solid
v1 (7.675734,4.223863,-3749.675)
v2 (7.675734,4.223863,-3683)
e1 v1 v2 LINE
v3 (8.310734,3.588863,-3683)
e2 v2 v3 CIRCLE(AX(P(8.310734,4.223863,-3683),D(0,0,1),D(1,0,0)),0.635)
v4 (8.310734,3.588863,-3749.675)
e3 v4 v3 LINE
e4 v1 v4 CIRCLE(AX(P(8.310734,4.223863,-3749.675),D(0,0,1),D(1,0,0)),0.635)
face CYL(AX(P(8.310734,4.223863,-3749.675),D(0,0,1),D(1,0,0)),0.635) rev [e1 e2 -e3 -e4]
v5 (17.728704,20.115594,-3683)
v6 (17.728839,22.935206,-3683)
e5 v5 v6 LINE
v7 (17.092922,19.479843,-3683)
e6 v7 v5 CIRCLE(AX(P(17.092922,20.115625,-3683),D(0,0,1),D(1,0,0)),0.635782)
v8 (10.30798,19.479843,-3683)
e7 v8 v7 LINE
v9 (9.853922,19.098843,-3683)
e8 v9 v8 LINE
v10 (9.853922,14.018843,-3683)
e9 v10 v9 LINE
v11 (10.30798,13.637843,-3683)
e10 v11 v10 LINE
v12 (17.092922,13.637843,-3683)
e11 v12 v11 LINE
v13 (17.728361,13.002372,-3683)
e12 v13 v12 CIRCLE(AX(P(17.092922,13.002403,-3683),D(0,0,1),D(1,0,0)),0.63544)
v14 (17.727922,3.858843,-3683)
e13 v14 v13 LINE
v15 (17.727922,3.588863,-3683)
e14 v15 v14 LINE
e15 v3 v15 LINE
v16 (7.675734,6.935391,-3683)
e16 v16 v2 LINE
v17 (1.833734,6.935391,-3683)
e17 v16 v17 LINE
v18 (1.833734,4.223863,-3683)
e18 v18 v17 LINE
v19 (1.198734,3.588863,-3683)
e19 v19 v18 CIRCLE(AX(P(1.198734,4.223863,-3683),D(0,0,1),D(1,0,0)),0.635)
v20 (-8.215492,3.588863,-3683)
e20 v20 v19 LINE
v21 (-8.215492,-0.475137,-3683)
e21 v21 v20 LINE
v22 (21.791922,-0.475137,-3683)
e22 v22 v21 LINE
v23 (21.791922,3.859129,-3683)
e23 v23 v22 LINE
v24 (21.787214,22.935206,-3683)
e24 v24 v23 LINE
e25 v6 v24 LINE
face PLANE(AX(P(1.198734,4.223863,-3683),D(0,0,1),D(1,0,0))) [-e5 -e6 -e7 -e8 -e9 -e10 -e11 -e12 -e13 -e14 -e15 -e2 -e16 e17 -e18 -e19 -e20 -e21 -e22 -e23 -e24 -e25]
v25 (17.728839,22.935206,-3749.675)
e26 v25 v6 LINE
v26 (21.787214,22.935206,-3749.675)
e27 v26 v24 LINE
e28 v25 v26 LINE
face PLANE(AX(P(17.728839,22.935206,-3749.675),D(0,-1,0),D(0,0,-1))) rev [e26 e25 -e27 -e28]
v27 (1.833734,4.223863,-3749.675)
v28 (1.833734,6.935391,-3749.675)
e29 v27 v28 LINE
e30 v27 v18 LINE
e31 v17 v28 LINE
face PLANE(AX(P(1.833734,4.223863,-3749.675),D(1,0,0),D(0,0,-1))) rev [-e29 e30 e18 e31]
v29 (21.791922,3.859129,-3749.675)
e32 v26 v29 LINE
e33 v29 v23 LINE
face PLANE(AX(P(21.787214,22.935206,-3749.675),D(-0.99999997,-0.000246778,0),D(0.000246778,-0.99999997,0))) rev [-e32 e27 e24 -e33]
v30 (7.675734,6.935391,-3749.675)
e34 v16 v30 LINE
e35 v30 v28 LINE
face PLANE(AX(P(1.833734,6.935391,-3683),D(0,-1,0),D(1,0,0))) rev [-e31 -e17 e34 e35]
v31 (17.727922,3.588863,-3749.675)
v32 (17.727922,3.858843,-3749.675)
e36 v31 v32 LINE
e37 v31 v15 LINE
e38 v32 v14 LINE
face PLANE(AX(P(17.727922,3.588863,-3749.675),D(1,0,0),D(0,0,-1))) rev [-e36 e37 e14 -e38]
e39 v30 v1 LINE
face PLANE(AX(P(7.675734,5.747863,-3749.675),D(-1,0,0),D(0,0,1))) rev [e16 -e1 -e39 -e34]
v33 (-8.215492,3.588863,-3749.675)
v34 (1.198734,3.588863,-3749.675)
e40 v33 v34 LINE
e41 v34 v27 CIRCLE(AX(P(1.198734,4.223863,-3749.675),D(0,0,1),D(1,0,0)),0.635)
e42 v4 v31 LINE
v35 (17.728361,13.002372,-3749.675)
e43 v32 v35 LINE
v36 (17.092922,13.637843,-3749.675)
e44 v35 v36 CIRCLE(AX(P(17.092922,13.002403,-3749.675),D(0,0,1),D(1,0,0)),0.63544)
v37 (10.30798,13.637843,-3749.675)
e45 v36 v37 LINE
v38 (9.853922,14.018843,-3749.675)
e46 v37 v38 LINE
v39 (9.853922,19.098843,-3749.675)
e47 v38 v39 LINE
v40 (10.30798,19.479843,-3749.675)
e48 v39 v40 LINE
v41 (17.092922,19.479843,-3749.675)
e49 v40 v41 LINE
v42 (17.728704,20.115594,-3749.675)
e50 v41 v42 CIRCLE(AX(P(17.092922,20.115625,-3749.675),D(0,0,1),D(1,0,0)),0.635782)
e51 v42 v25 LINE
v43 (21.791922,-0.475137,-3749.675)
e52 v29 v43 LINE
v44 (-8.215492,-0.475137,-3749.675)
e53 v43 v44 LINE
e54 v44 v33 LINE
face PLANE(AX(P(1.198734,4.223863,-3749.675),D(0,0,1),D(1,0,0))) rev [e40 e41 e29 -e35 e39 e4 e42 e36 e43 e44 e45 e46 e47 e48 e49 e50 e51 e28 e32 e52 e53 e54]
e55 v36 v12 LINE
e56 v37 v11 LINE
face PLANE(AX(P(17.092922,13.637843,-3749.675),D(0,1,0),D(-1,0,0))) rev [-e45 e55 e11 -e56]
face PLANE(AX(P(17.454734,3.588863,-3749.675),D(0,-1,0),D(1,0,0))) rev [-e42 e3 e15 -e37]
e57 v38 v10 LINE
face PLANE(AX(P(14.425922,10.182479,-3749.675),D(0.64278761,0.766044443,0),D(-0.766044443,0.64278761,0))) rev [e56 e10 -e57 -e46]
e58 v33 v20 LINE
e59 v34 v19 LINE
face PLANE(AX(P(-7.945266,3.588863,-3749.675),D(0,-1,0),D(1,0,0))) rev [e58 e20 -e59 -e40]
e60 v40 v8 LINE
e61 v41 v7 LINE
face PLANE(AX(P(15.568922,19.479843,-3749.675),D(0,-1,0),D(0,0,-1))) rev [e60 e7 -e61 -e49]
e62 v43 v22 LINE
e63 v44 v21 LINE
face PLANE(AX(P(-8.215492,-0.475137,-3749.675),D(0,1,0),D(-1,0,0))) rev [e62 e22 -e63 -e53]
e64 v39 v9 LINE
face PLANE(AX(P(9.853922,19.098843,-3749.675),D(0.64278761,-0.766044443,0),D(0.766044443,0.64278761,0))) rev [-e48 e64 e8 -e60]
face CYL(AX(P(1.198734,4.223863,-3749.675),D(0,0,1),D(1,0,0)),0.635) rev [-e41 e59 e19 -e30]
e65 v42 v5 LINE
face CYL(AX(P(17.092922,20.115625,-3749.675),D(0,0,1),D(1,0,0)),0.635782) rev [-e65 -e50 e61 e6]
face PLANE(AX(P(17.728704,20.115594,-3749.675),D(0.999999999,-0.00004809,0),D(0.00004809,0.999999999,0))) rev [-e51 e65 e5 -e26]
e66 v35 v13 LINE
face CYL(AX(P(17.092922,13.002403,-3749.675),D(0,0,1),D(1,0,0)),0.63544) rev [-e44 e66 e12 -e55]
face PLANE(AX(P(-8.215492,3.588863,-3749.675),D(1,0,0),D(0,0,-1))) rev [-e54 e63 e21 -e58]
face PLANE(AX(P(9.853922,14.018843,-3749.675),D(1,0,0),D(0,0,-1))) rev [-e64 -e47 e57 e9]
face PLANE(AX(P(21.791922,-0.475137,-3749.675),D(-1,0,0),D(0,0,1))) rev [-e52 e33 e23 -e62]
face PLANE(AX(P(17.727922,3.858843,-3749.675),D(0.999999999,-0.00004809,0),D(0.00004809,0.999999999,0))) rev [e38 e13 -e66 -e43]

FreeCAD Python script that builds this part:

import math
import FreeCAD as App
import Part
import Sketcher

V = App.Vector
Q = App.Units.Quantity

doc = App.newDocument("Part")
body = doc.addObject("PartDesign::Body", "Body")

# Sketch on XY plane
sketch1 = body.newObject("Sketcher::SketchObject", "Sketch")
sketch1.AttachmentSupport = (doc.getObject("XY_Plane"), [""])
sketch1.MapMode = "FlatFace"
sketch1.AttachmentOffset = App.Placement(V(0, 0, -145 * 25.4), App.Rotation())
sketch1.addGeometry(Part.ArcOfCircle(Part.Circle(V(1.2, 4.22, 0), V(0, 0, 1), 0.64), math.radians(-90), math.radians(0)), False)
sketch1.addGeometry(Part.LineSegment(V(1.83, 4.22, 0), V(1.83, 5.75, 0)), False)
sketch1.addGeometry(Part.ArcOfCircle(Part.Circle(V(1.2, 5.75, 0), V(0, 0, 1), 0.63), math.radians(0), math.radians(90)), False)
sketch1.addGeometry(Part.LineSegment(V(1.2, 6.38, 0), V(-1.62, 6.38, 0)), False)
sketch1.addGeometry(Part.LineSegment(V(-1.62, 6.38, 0), V(-1.62, 6.89, 0)), False)
sketch1.addGeometry(Part.LineSegment(V(-1.62, 6.89, 0), V(2.21, 11.46, 0)), False)
sketch1.addGeometry(Part.LineSegment(V(2.21, 11.46, 0), V(7.29, 11.46, 0)), False)
sketch1.addGeometry(Part.LineSegment(V(7.29, 11.46, 0), V(11.13, 6.89, 0)), False)
sketch1.addGeometry(Part.LineSegment(V(11.13, 6.89, 0), V(11.13, 6.38, 0)), False)
sketch1.addGeometry(Part.LineSegment(V(11.13, 6.38, 0), V(8.31, 6.38, 0)), False)
sketch1.addGeometry(Part.ArcOfCircle(Part.Circle(V(8.31, 5.75, 0), V(0, 0, 1), 0.63), math.radians(90), math.radians(180)), False)
sketch1.addGeometry(Part.LineSegment(V(7.68, 5.75, 0), V(7.68, 4.22, 0)), False)
sketch1.addGeometry(Part.ArcOfCircle(Part.Circle(V(8.31, 4.22, 0), V(0, 0, 1), 0.64), math.radians(180), math.radians(270)), False)
sketch1.addGeometry(Part.LineSegment(V(8.31, 3.59, 0), V(17.73, 3.59, 0)), False)
sketch1.addGeometry(Part.LineSegment(V(17.73, 3.59, 0), V(17.73, 3.86, 0)), False)
sketch1.addGeometry(Part.LineSegment(V(17.73, 3.86, 0), V(17.73, 13, 0)), False)
sketch1.addGeometry(Part.ArcOfCircle(Part.Circle(V(17.09, 13, 0), V(0, 0, 1), 0.64), math.radians(0), math.radians(90)), False)
sketch1.addGeometry(Part.LineSegment(V(17.09, 13.64, 0), V(15.57, 13.64, 0)), False)
sketch1.addGeometry(Part.ArcOfCircle(Part.Circle(V(15.57, 13, 0), V(0, 0, 1), 0.64), math.radians(90), math.radians(180)), False)
sketch1.addGeometry(Part.LineSegment(V(14.93, 13, 0), V(14.93, 10.18, 0)), False)
sketch1.addGeometry(Part.LineSegment(V(14.93, 10.18, 0), V(14.43, 10.18, 0)), False)
sketch1.addGeometry(Part.LineSegment(V(14.43, 10.18, 0), V(9.85, 14.02, 0)), False)
sketch1.addGeometry(Part.LineSegment(V(9.85, 14.02, 0), V(9.85, 19.1, 0)), False)
sketch1.addGeometry(Part.LineSegment(V(9.85, 19.1, 0), V(14.43, 22.94, 0)), False)
sketch1.addGeometry(Part.LineSegment(V(14.43, 22.94, 0), V(14.93, 22.94, 0)), False)
sketch1.addGeometry(Part.LineSegment(V(14.93, 22.94, 0), V(14.93, 20.11, 0)), False)
sketch1.addGeometry(Part.ArcOfCircle(Part.Circle(V(15.57, 20.11, 0), V(0, 0, 1), 0.64), math.radians(180), math.radians(270)), False)
sketch1.addGeometry(Part.LineSegment(V(15.57, 19.48, 0), V(17.09, 19.48, 0)), False)
sketch1.addGeometry(Part.ArcOfCircle(Part.Circle(V(17.09, 20.12, 0), V(0, 0, 1), 0.64), math.radians(-90), math.radians(0)), False)
sketch1.addGeometry(Part.LineSegment(V(17.73, 20.12, 0), V(17.73, 22.94, 0)), False)
sketch1.addGeometry(Part.LineSegment(V(17.73, 22.94, 0), V(21.79, 22.94, 0)), False)
sketch1.addGeometry(Part.LineSegment(V(21.79, 22.94, 0), V(21.79, 3.86, 0)), False)
sketch1.addGeometry(Part.LineSegment(V(21.79, 3.86, 0), V(21.79, -0.48, 0)), False)
sketch1.addGeometry(Part.LineSegment(V(21.79, -0.48, 0), V(-8.22, -0.48, 0)), False)
sketch1.addGeometry(Part.LineSegment(V(-8.22, -0.48, 0), V(-8.22, 3.59, 0)), False)
sketch1.addGeometry(Part.LineSegment(V(-8.22, 3.59, 0), V(1.2, 3.59, 0)), False)
sketch1.addConstraint(Sketcher.Constraint("Tangent", 0, 2, 1, 1))
sketch1.addConstraint(Sketcher.Constraint("Tangent", 1, 2, 2, 1))
sketch1.addConstraint(Sketcher.Constraint("Tangent", 2, 2, 3, 1))
sketch1.addConstraint(Sketcher.Constraint("Coincident", 3, 2, 4, 1))
sketch1.addConstraint(Sketcher.Constraint("Coincident", 4, 2, 5, 1))
sketch1.addConstraint(Sketcher.Constraint("Coincident", 5, 2, 6, 1))
sketch1.addConstraint(Sketcher.Constraint("Coincident", 6, 2, 7, 1))
sketch1.addConstraint(Sketcher.Constraint("Coincident", 7, 2, 8, 1))
sketch1.addConstraint(Sketcher.Constraint("Coincident", 8, 2, 9, 1))
sketch1.addConstraint(Sketcher.Constraint("Tangent", 9, 2, 10, 1))
sketch1.addConstraint(Sketcher.Constraint("Tangent", 10, 2, 11, 1))
sketch1.addConstraint(Sketcher.Constraint("Tangent", 11, 2, 12, 1))
sketch1.addConstraint(Sketcher.Constraint("Tangent", 12, 2, 13, 1))
sketch1.addConstraint(Sketcher.Constraint("Coincident", 13, 2, 14, 1))
sketch1.addConstraint(Sketcher.Constraint("Coincident", 14, 2, 15, 1))
sketch1.addConstraint(Sketcher.Constraint("Tangent", 15, 2, 16, 1))
sketch1.addConstraint(Sketcher.Constraint("Tangent", 16, 2, 17, 1))
sketch1.addConstraint(Sketcher.Constraint("Tangent", 17, 2, 18, 1))
sketch1.addConstraint(Sketcher.Constraint("Tangent", 18, 2, 19, 1))
sketch1.addConstraint(Sketcher.Constraint("Coincident", 19, 2, 20, 1))
sketch1.addConstraint(Sketcher.Constraint("Coincident", 20, 2, 21, 1))
sketch1.addConstraint(Sketcher.Constraint("Coincident", 21, 2, 22, 1))
sketch1.addConstraint(Sketcher.Constraint("Coincident", 22, 2, 23, 1))
sketch1.addConstraint(Sketcher.Constraint("Coincident", 23, 2, 24, 1))
sketch1.addConstraint(Sketcher.Constraint("Coincident", 24, 2, 25, 1))
sketch1.addConstraint(Sketcher.Constraint("Tangent", 25, 2, 26, 1))
sketch1.addConstraint(Sketcher.Constraint("Tangent", 26, 2, 27, 1))
sketch1.addConstraint(Sketcher.Constraint("Tangent", 27, 2, 28, 1))
sketch1.addConstraint(Sketcher.Constraint("Tangent", 28, 2, 29, 1))
sketch1.addConstraint(Sketcher.Constraint("Coincident", 29, 2, 30, 1))
sketch1.addConstraint(Sketcher.Constraint("Coincident", 30, 2, 31, 1))
sketch1.addConstraint(Sketcher.Constraint("Coincident", 31, 2, 32, 1))
sketch1.addConstraint(Sketcher.Constraint("Coincident", 32, 2, 33, 1))
sketch1.addConstraint(Sketcher.Constraint("Coincident", 33, 2, 34, 1))
sketch1.addConstraint(Sketcher.Constraint("Coincident", 34, 2, 35, 1))
sketch1.addConstraint(Sketcher.Constraint("Tangent", 35, 2, 0, 1))
sketch1.addConstraint(Sketcher.Constraint("Vertical", 1))
sketch1.addConstraint(Sketcher.Constraint("Horizontal", 3))
sketch1.addConstraint(Sketcher.Constraint("Vertical", 4))
sketch1.addConstraint(Sketcher.Constraint("Horizontal", 6))
sketch1.addConstraint(Sketcher.Constraint("Vertical", 8))
sketch1.addConstraint(Sketcher.Constraint("Horizontal", 9))
sketch1.addConstraint(Sketcher.Constraint("Vertical", 11))
sketch1.addConstraint(Sketcher.Constraint("Horizontal", 13))
sketch1.addConstraint(Sketcher.Constraint("Vertical", 14))
sketch1.addConstraint(Sketcher.Constraint("Horizontal", 17))
sketch1.addConstraint(Sketcher.Constraint("Vertical", 19))
sketch1.addConstraint(Sketcher.Constraint("Horizontal", 20))
sketch1.addConstraint(Sketcher.Constraint("Vertical", 22))
sketch1.addConstraint(Sketcher.Constraint("Horizontal", 24))
sketch1.addConstraint(Sketcher.Constraint("Vertical", 25))
sketch1.addConstraint(Sketcher.Constraint("Horizontal", 27))
sketch1.addConstraint(Sketcher.Constraint("Horizontal", 30))
sketch1.addConstraint(Sketcher.Constraint("Vertical", 32))
sketch1.addConstraint(Sketcher.Constraint("Horizontal", 33))
sketch1.addConstraint(Sketcher.Constraint("Vertical", 34))
sketch1.addConstraint(Sketcher.Constraint("Horizontal", 35))
sketch1.addConstraint(Sketcher.Constraint("Equal", 0, 2))
sketch1.addConstraint(Sketcher.Constraint("Equal", 2, 10))
sketch1.addConstraint(Sketcher.Constraint("Equal", 10, 12))
sketch1.addConstraint(Sketcher.Constraint("Equal", 12, 18))
sketch1.addConstraint(Sketcher.Constraint("Equal", 18, 26))
sketch1.addConstraint(Sketcher.Constraint("Perpendicular", 5, 21))
sketch1.addConstraint(Sketcher.Constraint("Perpendicular", 7, 23))
sketch1.addConstraint(Sketcher.Constraint("Parallel", 15, 29))
sketch1.addConstraint(Sketcher.Constraint("Horizontal", 2, 3, 10, 3))
sketch1.addConstraint(Sketcher.Constraint("Horizontal", 0, 3, 12, 3))
sketch1.addConstraint(Sketcher.Constraint("Horizontal", 4, 2, 7, 2))
sketch1.addConstraint(Sketcher.Constraint("Horizontal", 24, 2, 29, 2))
sketch1.addConstraint(Sketcher.Constraint("Vertical", 18, 3, 26, 3))
sketch1.addConstraint(Sketcher.Constraint("Vertical", 16, 3, 28, 3))
sketch1.addConstraint(Sketcher.Constraint("Vertical", 20, 2, 23, 2))
sketch1.addConstraint(Sketcher.Constraint("Equal", 3, 9))
sketch1.addConstraint(Sketcher.Constraint("Equal", 27, 1))
sketch1.addConstraint(Sketcher.Constraint("Equal", 24, 4))
sketch1.addConstraint(Sketcher.Constraint("Equal", 9, 19))
sketch1.addConstraint(Sketcher.Constraint("Equal", 6, 22))
sketch1.addConstraint(Sketcher.Constraint("Equal", 19, 25))
sketch1.addConstraint(Sketcher.Constraint("Equal", 5, 7))
sketch1.addConstraint(Sketcher.Constraint("Equal", 7, 21))
sketch1.addConstraint(Sketcher.Constraint("DistanceX", 6, 1, 6, 2, Q("0.2 in")))
sketch1.addConstraint(Sketcher.Constraint("Angle", 5, Q("50 deg")))
sketch1.addConstraint(Sketcher.Constraint("Radius", 0, Q("0.025 in")))
sketch1.addConstraint(Sketcher.Constraint("DistanceX", 17, 2, 17, 1, Q("0.06 in")))
sketch1.addConstraint(Sketcher.Constraint("DistanceX", 20, 2, 20, 1, Q("0.02 in")))
sketch1.addConstraint(Sketcher.Constraint("DistanceY", 34, 1, 34, 2, Q("0.16 in")))
sketch1.addConstraint(Sketcher.Constraint("DistanceY", 2, 2, 5, 2, Q("0.2 in")))
sketch1.addConstraint(Sketcher.Constraint("DistanceX", 2, 3, 10, 3, Q("0.28 in")))
sketch1.addConstraint(Sketcher.Constraint("DistanceY", 14, 2, 18, 3, Q("0.36 in")))
sketch1.addConstraint(Sketcher.Constraint("DistanceX", 14, 2, 31, 2, Q("0.16 in")))
sketch1.addConstraint(Sketcher.Constraint("DistanceX", 19, 2, 31, 2, Q("0.27 in")))
sketch1.addConstraint(Sketcher.Constraint("Radius", 16, 0.63544))
sketch1.addConstraint(Sketcher.Constraint("Radius", 28, 0.635782))
sketch1.addConstraint(Sketcher.Constraint("DistanceY", 14, 1, 14, 2, 0.26998))
sketch1.addConstraint(Sketcher.Constraint("Distance", 31, 19.076078))
sketch1.addConstraint(Sketcher.Constraint("DistanceX", 13, 1, 13, 2, 9.417188))
sketch1.addConstraint(Sketcher.Constraint("DistanceX", 30, 1, 30, 2, 4.058375))
sketch1.addConstraint(Sketcher.Constraint("DistanceX", 33, 2, 33, 1, 30.007414))
sketch1.addConstraint(Sketcher.Constraint("DistanceX", -1, 1, 16, 3, 17.092922))
sketch1.addConstraint(Sketcher.Constraint("DistanceY", -1, 1, 19, 2, 10.182479))
pad1 = body.newObject("PartDesign::Pad", "Pad")
pad1.Profile = sketch1
pad1.Length = Q("2.625 in")
pad1.Reversed = True

# Sketch on XY plane
sketch2 = body.newObject("Sketcher::SketchObject", "Sketch001")
sketch2.AttachmentSupport = (doc.getObject("XY_Plane"), [""])
sketch2.MapMode = "FlatFace"
sketch2.AttachmentOffset = App.Placement(V(0, 0, -145 * 25.4), App.Rotation())
sketch2.addGeometry(Part.LineSegment(V(11.1, 6.4, 0), V(11.1, 6.9, 0)), False)
sketch2.addGeometry(Part.LineSegment(V(11.1, 6.9, 0), V(7.7, 11, 0)), False)
sketch2.addGeometry(Part.LineSegment(V(7.7, 11, 0), V(7.7, 5.7, 0)), False)
sketch2.addGeometry(Part.ArcOfCircle(Part.Circle(V(8.3, 5.7, 0), V(0, 0, 1), 0.6), math.radians(90), math.radians(180)), False)
sketch2.addGeometry(Part.LineSegment(V(8.3, 6.4, 0), V(11.1, 6.4, 0)), False)
sketch2.addConstraint(Sketcher.Constraint("Coincident", 0, 2, 1, 1))
sketch2.addConstraint(Sketcher.Constraint("Coincident", 1, 2, 2, 1))
sketch2.addConstraint(Sketcher.Constraint("Tangent", 2, 2, 3, 2))
sketch2.addConstraint(Sketcher.Constraint("Tangent", 3, 1, 4, 1))
sketch2.addConstraint(Sketcher.Constraint("Coincident", 4, 2, 0, 1))
sketch2.addConstraint(Sketcher.Constraint("Vertical", 0))
sketch2.addConstraint(Sketcher.Constraint("Vertical", 2))
sketch2.addConstraint(Sketcher.Constraint("Horizontal", 4))
sketch2.addConstraint(Sketcher.Constraint("Angle", 1, Q("130 deg")))
sketch2.addConstraint(Sketcher.Constraint("Radius", 3, Q("0.025 in")))
sketch2.addConstraint(Sketcher.Constraint("DistanceY", 0, 1, 0, 2, Q("0.02 in")))
sketch2.addConstraint(Sketcher.Constraint("DistanceY", 2, 2, 2, 1, 5.260942))
sketch2.addConstraint(Sketcher.Constraint("DistanceX", -1, 1, 3, 3, 8.310734))
sketch2.addConstraint(Sketcher.Constraint("DistanceY", -1, 1, 3, 3, 5.747863))
pocket1 = body.newObject("PartDesign::Pocket", "Pocket")
pocket1.Profile = sketch2
pocket1.Type = "UpToFirst"

# Sketch on XY plane
sketch3 = body.newObject("Sketcher::SketchObject", "Sketch002")
sketch3.AttachmentSupport = (doc.getObject("XY_Plane"), [""])
sketch3.MapMode = "FlatFace"
sketch3.AttachmentOffset = App.Placement(V(0, 0, -145 * 25.4), App.Rotation())
sketch3.addGeometry(Part.LineSegment(V(1.8, 5.7, 0), V(1.8, 11, 0)), False)
sketch3.addGeometry(Part.LineSegment(V(1.8, 11, 0), V(-1.6, 6.9, 0)), False)
sketch3.addGeometry(Part.LineSegment(V(-1.6, 6.9, 0), V(-1.6, 6.4, 0)), False)
sketch3.addGeometry(Part.LineSegment(V(-1.6, 6.4, 0), V(1.2, 6.4, 0)), False)
sketch3.addGeometry(Part.ArcOfCircle(Part.Circle(V(1.2, 5.7, 0), V(0, 0, 1), 0.6), math.radians(0), math.radians(90)), False)
sketch3.addConstraint(Sketcher.Constraint("Coincident", 0, 2, 1, 1))
sketch3.addConstraint(Sketcher.Constraint("Coincident", 1, 2, 2, 1))
sketch3.addConstraint(Sketcher.Constraint("Coincident", 2, 2, 3, 1))
sketch3.addConstraint(Sketcher.Constraint("Tangent", 3, 2, 4, 2))
sketch3.addConstraint(Sketcher.Constraint("Tangent", 4, 1, 0, 1))
sketch3.addConstraint(Sketcher.Constraint("Vertical", 0))
sketch3.addConstraint(Sketcher.Constraint("Vertical", 2))
sketch3.addConstraint(Sketcher.Constraint("Horizontal", 3))
sketch3.addConstraint(Sketcher.Constraint("Angle", 1, Q("-130 deg")))
sketch3.addConstraint(Sketcher.Constraint("Radius", 4, Q("0.025 in")))
sketch3.addConstraint(Sketcher.Constraint("DistanceY", 2, 2, 2, 1, Q("0.02 in")))
sketch3.addConstraint(Sketcher.Constraint("DistanceY", 0, 1, 0, 2, 5.260942))
sketch3.addConstraint(Sketcher.Constraint("DistanceX", 1, 2, -1, 1, 1.621629))
sketch3.addConstraint(Sketcher.Constraint("DistanceY", -1, 1, 4, 3, 5.747863))
pocket2 = body.newObject("PartDesign::Pocket", "Pocket001")
pocket2.Profile = sketch3
pocket2.Type = "UpToFirst"

# Sketch on XY plane
sketch4 = body.newObject("Sketcher::SketchObject", "Sketch003")
sketch4.AttachmentSupport = (doc.getObject("XY_Plane"), [""])
sketch4.MapMode = "FlatFace"
sketch4.AttachmentOffset = App.Placement(V(0, 0, -145 * 25.4), App.Rotation())
sketch4.addGeometry(Part.LineSegment(V(10.3, 19.5, 0), V(15.6, 19.5, 0)), False)
sketch4.addGeometry(Part.ArcOfCircle(Part.Circle(V(15.6, 20.1, 0), V(0, 0, 1), 0.6), math.radians(180), math.radians(270)), False)
sketch4.addGeometry(Part.LineSegment(V(14.9, 20.1, 0), V(14.9, 22.9, 0)), False)
sketch4.addGeometry(Part.LineSegment(V(14.9, 22.9, 0), V(14.4, 22.9, 0)), False)
sketch4.addGeometry(Part.LineSegment(V(14.4, 22.9, 0), V(10.3, 19.5, 0)), False)
sketch4.addConstraint(Sketcher.Constraint("Tangent", 0, 2, 1, 2))
sketch4.addConstraint(Sketcher.Constraint("Tangent", 1, 1, 2, 1))
sketch4.addConstraint(Sketcher.Constraint("Coincident", 2, 2, 3, 1))
sketch4.addConstraint(Sketcher.Constraint("Coincident", 3, 2, 4, 1))
sketch4.addConstraint(Sketcher.Constraint("Coincident", 4, 2, 0, 1))
sketch4.addConstraint(Sketcher.Constraint("Horizontal", 0))
sketch4.addConstraint(Sketcher.Constraint("Vertical", 2))
sketch4.addConstraint(Sketcher.Constraint("Horizontal", 3))
sketch4.addConstraint(Sketcher.Constraint("Angle", 4, Q("-140 deg")))
sketch4.addConstraint(Sketcher.Constraint("Radius", 1, Q("0.025 in")))
sketch4.addConstraint(Sketcher.Constraint("DistanceX", 3, 2, 3, 1, Q("0.02 in")))
sketch4.addConstraint(Sketcher.Constraint("DistanceX", 0, 1, 0, 2, 5.260942))
sketch4.addConstraint(Sketcher.Constraint("DistanceX", -1, 1, 1, 3, 15.568922))
sketch4.addConstraint(Sketcher.Constraint("DistanceY", -1, 1, 1, 3, 20.114843))
pocket3 = body.newObject("PartDesign::Pocket", "Pocket002")
pocket3.Profile = sketch4
pocket3.Type = "UpToFirst"

# Sketch on XY plane
sketch5 = body.newObject("Sketcher::SketchObject", "Sketch004")
sketch5.AttachmentSupport = (doc.getObject("XY_Plane"), [""])
sketch5.MapMode = "FlatFace"
sketch5.AttachmentOffset = App.Placement(V(0, 0, -145 * 25.4), App.Rotation())
sketch5.addGeometry(Part.LineSegment(V(10.3, 13.6, 0), V(14.4, 10.2, 0)), False)
sketch5.addGeometry(Part.LineSegment(V(14.4, 10.2, 0), V(14.9, 10.2, 0)), False)
sketch5.addGeometry(Part.LineSegment(V(14.9, 10.2, 0), V(14.9, 13, 0)), False)
sketch5.addGeometry(Part.ArcOfCircle(Part.Circle(V(15.6, 13, 0), V(0, 0, 1), 0.6), math.radians(90), math.radians(180)), False)
sketch5.addGeometry(Part.LineSegment(V(15.6, 13.6, 0), V(10.3, 13.6, 0)), False)
sketch5.addConstraint(Sketcher.Constraint("Coincident", 0, 2, 1, 1))
sketch5.addConstraint(Sketcher.Constraint("Coincident", 1, 2, 2, 1))
sketch5.addConstraint(Sketcher.Constraint("Tangent", 2, 2, 3, 2))
sketch5.addConstraint(Sketcher.Constraint("Tangent", 3, 1, 4, 1))
sketch5.addConstraint(Sketcher.Constraint("Coincident", 4, 2, 0, 1))
sketch5.addConstraint(Sketcher.Constraint("Horizontal", 1))
sketch5.addConstraint(Sketcher.Constraint("Vertical", 2))
sketch5.addConstraint(Sketcher.Constraint("Horizontal", 4))
sketch5.addConstraint(Sketcher.Constraint("Angle", 0, Q("-40 deg")))
sketch5.addConstraint(Sketcher.Constraint("Radius", 3, Q("0.025 in")))
sketch5.addConstraint(Sketcher.Constraint("DistanceX", 1, 1, 1, 2, Q("0.02 in")))
sketch5.addConstraint(Sketcher.Constraint("DistanceX", 4, 2, 4, 1, 5.260942))
sketch5.addConstraint(Sketcher.Constraint("DistanceX", -1, 1, 3, 3, 15.568922))
sketch5.addConstraint(Sketcher.Constraint("DistanceY", -1, 1, 0, 2, 10.182479))
pocket4 = body.newObject("PartDesign::Pocket", "Pocket003")
pocket4.Profile = sketch5
pocket4.Type = "UpToFirst"

# Sketch on XY plane
sketch6 = body.newObject("Sketcher::SketchObject", "Sketch005")
sketch6.AttachmentSupport = (doc.getObject("XY_Plane"), [""])
sketch6.MapMode = "FlatFace"
sketch6.AttachmentOffset = App.Placement(V(0, 0, -147.625 * 25.4), App.Rotation())
sketch6.addGeometry(Part.LineSegment(V(7.7, 11.8, 0), V(7.7, 6.9, 0)), False)
sketch6.addGeometry(Part.LineSegment(V(7.7, 6.9, 0), V(1.8, 6.9, 0)), False)
sketch6.addGeometry(Part.LineSegment(V(1.8, 6.9, 0), V(1.8, 11.8, 0)), False)
sketch6.addGeometry(Part.LineSegment(V(1.8, 11.8, 0), V(7.7, 11.8, 0)), False)
sketch6.addConstraint(Sketcher.Constraint("Coincident", 0, 2, 1, 1))
sketch6.addConstraint(Sketcher.Constraint("Coincident", 1, 2, 2, 1))
sketch6.addConstraint(Sketcher.Constraint("Coincident", 2, 2, 3, 1))
sketch6.addConstraint(Sketcher.Constraint("Coincident", 3, 2, 0, 1))
sketch6.addConstraint(Sketcher.Constraint("Vertical", 0))
sketch6.addConstraint(Sketcher.Constraint("Horizontal", 1))
sketch6.addConstraint(Sketcher.Constraint("Vertical", 2))
sketch6.addConstraint(Sketcher.Constraint("Horizontal", 3))
sketch6.addConstraint(Sketcher.Constraint("DistanceX", 1, 2, 1, 1, Q("0.23 in")))
sketch6.addConstraint(Sketcher.Constraint("DistanceY", 0, 2, 0, 1, 4.878382))
sketch6.addConstraint(Sketcher.Constraint("DistanceY", -1, 1, 0, 2, 6.935391))
sketch6.addConstraint(Sketcher.Constraint("DistanceX", -1, 1, 0, 2, 7.675734))
pocket5 = body.newObject("PartDesign::Pocket", "Pocket004")
pocket5.Profile = sketch6
pocket5.Type = "ThroughAll"
pocket5.Reversed = True

doc.recompute()
